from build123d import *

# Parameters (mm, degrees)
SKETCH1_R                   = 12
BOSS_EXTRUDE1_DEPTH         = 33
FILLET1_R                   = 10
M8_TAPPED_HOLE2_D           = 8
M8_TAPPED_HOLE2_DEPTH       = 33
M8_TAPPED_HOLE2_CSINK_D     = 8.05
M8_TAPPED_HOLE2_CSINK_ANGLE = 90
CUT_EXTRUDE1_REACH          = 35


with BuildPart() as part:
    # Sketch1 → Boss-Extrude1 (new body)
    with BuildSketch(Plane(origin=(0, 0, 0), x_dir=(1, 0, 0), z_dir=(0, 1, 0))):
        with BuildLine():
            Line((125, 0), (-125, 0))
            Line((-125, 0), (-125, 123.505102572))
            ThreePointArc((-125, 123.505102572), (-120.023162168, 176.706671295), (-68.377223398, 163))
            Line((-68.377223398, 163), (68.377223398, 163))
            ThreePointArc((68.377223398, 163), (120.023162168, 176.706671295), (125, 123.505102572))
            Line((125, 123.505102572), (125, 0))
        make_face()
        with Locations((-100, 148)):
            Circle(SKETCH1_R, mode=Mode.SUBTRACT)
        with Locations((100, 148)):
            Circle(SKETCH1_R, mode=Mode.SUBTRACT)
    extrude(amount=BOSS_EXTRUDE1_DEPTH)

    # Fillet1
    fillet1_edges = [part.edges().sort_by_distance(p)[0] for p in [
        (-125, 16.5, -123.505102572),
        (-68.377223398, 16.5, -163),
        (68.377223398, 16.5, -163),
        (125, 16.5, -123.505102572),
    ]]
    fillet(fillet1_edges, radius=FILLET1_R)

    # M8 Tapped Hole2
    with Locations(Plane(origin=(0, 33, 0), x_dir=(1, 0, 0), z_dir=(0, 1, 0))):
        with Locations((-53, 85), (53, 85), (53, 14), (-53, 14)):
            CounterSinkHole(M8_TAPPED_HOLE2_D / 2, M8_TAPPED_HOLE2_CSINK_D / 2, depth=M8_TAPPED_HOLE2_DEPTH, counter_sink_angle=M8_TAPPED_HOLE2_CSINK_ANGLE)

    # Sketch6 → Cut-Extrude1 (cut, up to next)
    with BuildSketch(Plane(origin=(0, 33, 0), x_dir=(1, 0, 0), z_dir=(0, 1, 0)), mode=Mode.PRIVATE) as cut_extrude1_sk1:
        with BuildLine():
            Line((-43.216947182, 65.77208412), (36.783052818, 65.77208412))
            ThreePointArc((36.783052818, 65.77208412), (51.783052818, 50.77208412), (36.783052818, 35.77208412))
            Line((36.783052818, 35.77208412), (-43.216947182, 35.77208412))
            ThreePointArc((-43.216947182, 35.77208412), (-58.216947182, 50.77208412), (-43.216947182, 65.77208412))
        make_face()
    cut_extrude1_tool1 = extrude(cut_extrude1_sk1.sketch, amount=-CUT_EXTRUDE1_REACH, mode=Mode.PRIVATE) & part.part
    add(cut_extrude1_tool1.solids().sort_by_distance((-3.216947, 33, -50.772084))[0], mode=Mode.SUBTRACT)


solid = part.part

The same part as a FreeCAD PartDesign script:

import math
import FreeCAD as App
import Part
import Sketcher


def edges_at(feature, points):
    """Names of the edges that pass closest to the given points."""
    edges = feature.Shape.Edges
    near = lambda p: min(range(len(edges)), key=lambda i: edges[i].distToShape(Part.Vertex(*p))[0])
    return sorted({f"Edge{near(p) + 1}" for p in points})

doc = App.newDocument("Part")
body = doc.addObject("PartDesign::Body", "Body")

sketch1 = body.newObject("Sketcher::SketchObject", "Sketch")
sketch1.AttachmentSupport = (doc.getObject("XZ_Plane"), [""])
sketch1.MapMode = "FlatFace"
sketch1.addGeometry(Part.LineSegment(App.Vector(-125, 0, 0), App.Vector(125, 0, 0)), False)
sketch1.addGeometry(Part.LineSegment(App.Vector(125, 0, 0), App.Vector(125, -124, 0)), False)
sketch1.addGeometry(Part.ArcOfCircle(Part.Circle(App.Vector(100, -148, 0), App.Vector(0, 0, 1), 35), math.radians(-155), math.radians(44)), False)
sketch1.addGeometry(Part.LineSegment(App.Vector(68, -163, 0), App.Vector(-68, -163, 0)), False)
sketch1.addGeometry(Part.ArcOfCircle(Part.Circle(App.Vector(-100, -148, 0), App.Vector(0, 0, 1), 35), math.radians(136), math.radians(335)), False)
sketch1.addGeometry(Part.LineSegment(App.Vector(-125, -124, 0), App.Vector(-125, 0, 0)), False)
sketch1.addGeometry(Part.Circle(App.Vector(100, -148, 0), App.Vector(0, 0, 1), 12), False)
sketch1.addGeometry(Part.Circle(App.Vector(-100, -148, 0), App.Vector(0, 0, 1), 12), False)
sketch1.addConstraint(Sketcher.Constraint("Coincident", 0, 2, 1, 1))
sketch1.addConstraint(Sketcher.Constraint("Coincident", 1, 2, 2, 2))
sketch1.addConstraint(Sketcher.Constraint("Coincident", 2, 1, 3, 1))
sketch1.addConstraint(Sketcher.Constraint("Coincident", 3, 2, 4, 2))
sketch1.addConstraint(Sketcher.Constraint("Coincident", 4, 1, 5, 1))
sketch1.addConstraint(Sketcher.Constraint("Coincident", 5, 2, 0, 1))
sketch1.addConstraint(Sketcher.Constraint("Horizontal", 0))
sketch1.addConstraint(Sketcher.Constraint("Vertical", 1))
sketch1.addConstraint(Sketcher.Constraint("Horizontal", 3))
sketch1.addConstraint(Sketcher.Constraint("Vertical", 5))
sketch1.addConstraint(Sketcher.Constraint("Coincident", 6, 3, 2, 3))
sketch1.addConstraint(Sketcher.Constraint("Coincident", 7, 3, 4, 3))
sketch1.addConstraint(Sketcher.Constraint("Equal", 2, 4))
sketch1.addConstraint(Sketcher.Constraint("Equal", 6, 7))
sketch1.addConstraint(Sketcher.Constraint("Symmetric", 0, 2, 5, 2, -1, 1))
sketch1.addConstraint(Sketcher.Constraint("Symmetric", 2, 3, 4, 3, -2))
sketch1.addConstraint(Sketcher.Constraint("Diameter", 6, 24.0))
sketch1.addConstraint(Sketcher.Constraint("Radius", 2, 35.0))
sketch1.addConstraint(Sketcher.Constraint("DistanceX", 0, 1, 0, 2, 250.0))
sketch1.addConstraint(Sketcher.Constraint("DistanceX", -1, 1, 2, 3, 100.0))
sketch1.addConstraint(Sketcher.Constraint("DistanceY", 2, 3, -1, 1, 148.0))
sketch1.addConstraint(Sketcher.Constraint("DistanceY", 2, 1, -1, 1, 163.0))
pad1 = body.newObject("PartDesign::Pad", "Pad")
pad1.Profile = sketch1
pad1.Length = 33
pad1.Reversed = True
doc.recompute()

fillet = body.newObject("PartDesign::Fillet", "Fillet")
fillet.Base = (pad1, edges_at(pad1, [
    (-125, 16.5, -123.505),
    (-68.377, 16.5, -163),
    (68.377, 16.5, -163),
    (125, 16.5, -123.505),
]))
fillet.Radius = 10

sketch2 = body.newObject("Sketcher::SketchObject", "Sketch001")
sketch2.AttachmentSupport = (doc.getObject("XZ_Plane"), [""])
sketch2.MapMode = "FlatFace"
sketch2.AttachmentOffset = App.Placement(App.Vector(0, 0, -33), App.Rotation())
sketch2.addGeometry(Part.Circle(App.Vector(-53, -85, 0), App.Vector(0, 0, 1), 4), False)
sketch2.addGeometry(Part.Circle(App.Vector(53, -85, 0), App.Vector(0, 0, 1), 4), False)
sketch2.addGeometry(Part.Circle(App.Vector(53, -14, 0), App.Vector(0, 0, 1), 4), False)
sketch2.addGeometry(Part.Circle(App.Vector(-53, -14, 0), App.Vector(0, 0, 1), 4), False)
sketch2.addConstraint(Sketcher.Constraint("Equal", 0, 1))
sketch2.addConstraint(Sketcher.Constraint("Equal", 1, 2))
sketch2.addConstraint(Sketcher.Constraint("Equal", 2, 3))
sketch2.addConstraint(Sketcher.Constraint("Symmetric", 0, 3, 1, 3, -2))
sketch2.addConstraint(Sketcher.Constraint("Symmetric", 2, 3, 3, 3, -2))
sketch2.addConstraint(Sketcher.Constraint("Vertical", 1, 3, 2, 3))
sketch2.addConstraint(Sketcher.Constraint("Diameter", 0, 8.0))
sketch2.addConstraint(Sketcher.Constraint("DistanceX", 0, 3, -1, 1, 53.0))
sketch2.addConstraint(Sketcher.Constraint("DistanceY", 0, 3, -1, 1, 85.0))
sketch2.addConstraint(Sketcher.Constraint("DistanceY", 2, 3, -1, 1, 14.0))
doc.recompute()
hole = body.newObject("PartDesign::Hole", "Hole")
hole.Profile = sketch2
hole.ThreadType = "None"
hole.Diameter = 8
hole.DepthType = "Dimension"
hole.Depth = 33
hole.DrillPoint = "Flat"
hole.HoleCutType = "Countersink"
hole.HoleCutDiameter = 8.05
hole.HoleCutCountersinkAngle = 90
hole.Reversed = True

sketch3 = body.newObject("Sketcher::SketchObject", "Sketch002")
sketch3.AttachmentSupport = (doc.getObject("XZ_Plane"), [""])
sketch3.MapMode = "FlatFace"
sketch3.AttachmentOffset = App.Placement(App.Vector(0, 0, -33), App.Rotation())
sketch3.addGeometry(Part.LineSegment(App.Vector(37, -66, 0), App.Vector(-43, -66, 0)), False)
sketch3.addGeometry(Part.ArcOfCircle(Part.Circle(App.Vector(-43, -51, 0), App.Vector(0, 0, 1), 15), math.radians(90), math.radians(270)), False)
sketch3.addGeometry(Part.LineSegment(App.Vector(-43, -36, 0), App.Vector(37, -36, 0)), False)
sketch3.addGeometry(Part.ArcOfCircle(Part.Circle(App.Vector(37, -51, 0), App.Vector(0, 0, 1), 15), math.radians(-90), math.radians(90)), False)
sketch3.addConstraint(Sketcher.Constraint("Tangent", 0, 2, 1, 2))
sketch3.addConstraint(Sketcher.Constraint("Tangent", 1, 1, 2, 1))
sketch3.addConstraint(Sketcher.Constraint("Tangent", 2, 2, 3, 2))
sketch3.addConstraint(Sketcher.Constraint("Tangent", 3, 1, 0, 1))
sketch3.addConstraint(Sketcher.Constraint("Horizontal", 0))
sketch3.addConstraint(Sketcher.Constraint("Horizontal", 2))
sketch3.addConstraint(Sketcher.Constraint("Radius", 1, 15.0))
sketch3.addConstraint(Sketcher.Constraint("DistanceX", 0, 2, 0, 1, 80.0))
sketch3.addConstraint(Sketcher.Constraint("DistanceX", 1, 3, -1, 1, 43.216947))
sketch3.addConstraint(Sketcher.Constraint("DistanceY", 1, 3, -1, 1, 50.772084))
pocket1 = body.newObject("PartDesign::Pocket", "Pocket")
pocket1.Profile = sketch3
pocket1.Type = "UpToFirst"
pocket1.Reversed = True

doc.recompute()
